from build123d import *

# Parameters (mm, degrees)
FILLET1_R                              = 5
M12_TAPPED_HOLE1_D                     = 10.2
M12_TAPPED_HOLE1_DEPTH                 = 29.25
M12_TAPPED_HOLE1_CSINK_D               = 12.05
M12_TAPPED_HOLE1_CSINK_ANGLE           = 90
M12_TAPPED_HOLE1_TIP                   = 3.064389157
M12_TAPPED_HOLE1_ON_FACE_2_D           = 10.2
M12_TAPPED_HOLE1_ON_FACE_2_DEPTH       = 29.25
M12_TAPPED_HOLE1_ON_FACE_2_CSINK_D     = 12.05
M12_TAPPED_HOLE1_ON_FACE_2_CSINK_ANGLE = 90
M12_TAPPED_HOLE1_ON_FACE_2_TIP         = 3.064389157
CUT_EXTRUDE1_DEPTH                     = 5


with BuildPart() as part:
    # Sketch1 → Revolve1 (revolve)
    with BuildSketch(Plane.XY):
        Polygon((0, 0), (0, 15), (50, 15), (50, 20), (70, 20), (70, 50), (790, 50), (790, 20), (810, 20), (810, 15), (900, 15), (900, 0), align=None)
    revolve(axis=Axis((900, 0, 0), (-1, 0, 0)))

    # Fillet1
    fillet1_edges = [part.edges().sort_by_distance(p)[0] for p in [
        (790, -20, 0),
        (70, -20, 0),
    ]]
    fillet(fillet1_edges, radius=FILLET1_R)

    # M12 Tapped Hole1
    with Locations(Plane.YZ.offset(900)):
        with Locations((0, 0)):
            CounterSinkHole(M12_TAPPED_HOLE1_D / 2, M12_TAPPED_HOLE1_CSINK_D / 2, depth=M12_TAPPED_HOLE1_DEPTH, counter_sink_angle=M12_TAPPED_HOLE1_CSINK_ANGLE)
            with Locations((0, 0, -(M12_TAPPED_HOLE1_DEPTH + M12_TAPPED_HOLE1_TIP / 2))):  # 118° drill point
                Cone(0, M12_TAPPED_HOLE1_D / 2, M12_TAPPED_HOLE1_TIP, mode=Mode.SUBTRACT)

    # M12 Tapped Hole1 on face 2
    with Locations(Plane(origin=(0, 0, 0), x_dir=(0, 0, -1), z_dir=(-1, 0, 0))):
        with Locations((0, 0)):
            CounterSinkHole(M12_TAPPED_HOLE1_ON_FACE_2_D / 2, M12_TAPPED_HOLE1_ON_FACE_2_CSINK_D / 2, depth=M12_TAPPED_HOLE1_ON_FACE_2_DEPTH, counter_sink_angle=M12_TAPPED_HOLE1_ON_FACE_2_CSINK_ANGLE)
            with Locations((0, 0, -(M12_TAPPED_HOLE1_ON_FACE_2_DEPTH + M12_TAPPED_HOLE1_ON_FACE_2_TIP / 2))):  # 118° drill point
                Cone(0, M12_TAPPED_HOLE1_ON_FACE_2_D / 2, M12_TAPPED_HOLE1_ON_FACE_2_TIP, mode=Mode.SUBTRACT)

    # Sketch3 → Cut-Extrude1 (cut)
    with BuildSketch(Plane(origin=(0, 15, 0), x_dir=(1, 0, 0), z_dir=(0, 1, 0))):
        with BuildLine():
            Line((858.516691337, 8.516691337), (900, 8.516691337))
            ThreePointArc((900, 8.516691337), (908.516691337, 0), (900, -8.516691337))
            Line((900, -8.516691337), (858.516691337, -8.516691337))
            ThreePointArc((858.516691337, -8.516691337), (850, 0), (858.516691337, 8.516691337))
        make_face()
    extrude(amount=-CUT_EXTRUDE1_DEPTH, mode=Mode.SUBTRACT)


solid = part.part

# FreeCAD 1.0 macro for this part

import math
import FreeCAD as App
import Part
import Sketcher
Q = App.Units.Quantity


def edges_at(feature, points):
    """Names of the edges that pass closest to the given points."""
    edges = feature.Shape.Edges
    near = lambda p: min(range(len(edges)), key=lambda i: edges[i].distToShape(Part.Vertex(*p))[0])
    return sorted({f"Edge{near(p) + 1}" for p in points})


def add_polygon(sketch, points):
    """Adds a closed chain of lines whose ends are joined by coincident constraints."""
    first, n = sketch.GeometryCount, len(points)
    for a, b in zip(points, points[1:] + points[:1]):
        sketch.addGeometry(Part.LineSegment(App.Vector(*a, 0), App.Vector(*b, 0)), False)
    for i in range(n):
        sketch.addConstraint(Sketcher.Constraint("Coincident", first + i, 2, first + (i + 1) % n, 1))

doc = App.newDocument("Part")
body = doc.addObject("PartDesign::Body", "Body")

# Sketch on XY plane
sketch1 = doc.addObject("Sketcher::SketchObject", "Sketch")
body.addObject(sketch1)
sketch1.AttachmentSupport = (doc.XY_Plane, [""])
sketch1.MapMode = "FlatFace"
add_polygon(sketch1, [(0, 15), (0, 0), (900, 0), (900, 15), (810, 15), (810, 20), (790, 20), (790, 50), (70, 50), (70, 20), (50, 20), (50, 15)])  # lines 0-11
sketch1.addConstraint(Sketcher.Constraint("Vertical", 0))
sketch1.addConstraint(Sketcher.Constraint("Horizontal", 1))
sketch1.addConstraint(Sketcher.Constraint("Vertical", 2))
sketch1.addConstraint(Sketcher.Constraint("Horizontal", 3))
sketch1.addConstraint(Sketcher.Constraint("Vertical", 4))
sketch1.addConstraint(Sketcher.Constraint("Horizontal", 5))
sketch1.addConstraint(Sketcher.Constraint("Vertical", 6))
sketch1.addConstraint(Sketcher.Constraint("Horizontal", 7))
sketch1.addConstraint(Sketcher.Constraint("Vertical", 8))
sketch1.addConstraint(Sketcher.Constraint("Horizontal", 9))
sketch1.addConstraint(Sketcher.Constraint("Vertical", 10))
sketch1.addConstraint(Sketcher.Constraint("Horizontal", 11))
sketch1.addConstraint(Sketcher.Constraint("Coincident", 0, 2, -1, 1))
sketch1.addConstraint(Sketcher.Constraint("Horizontal", 5, 2, 8, 2))
sketch1.addConstraint(Sketcher.Constraint("Horizontal", 3, 2, 10, 2))
sketch1.addConstraint(Sketcher.Constraint("Equal", 5, 9))
sketch1.addConstraint(Sketcher.Constraint("DistanceX", 1, 1, 1, 2, Q("900 mm")))
sketch1.addConstraint(Sketcher.Constraint("DistanceX", 3, 2, 3, 1, Q("90 mm")))
sketch1.addConstraint(Sketcher.Constraint("DistanceX", 5, 2, 5, 1, Q("20 mm")))
sketch1.addConstraint(Sketcher.Constraint("DistanceX", 7, 2, 7, 1, Q("720 mm")))
sketch1.addConstraint(Sketcher.Constraint("DistanceY", 0, 2, 0, 1, Q("15 mm")))
sketch1.addConstraint(Sketcher.Constraint("DistanceY", 4, 1, 4, 2, Q("5 mm")))
sketch1.addConstraint(Sketcher.Constraint("DistanceY", 6, 1, 6, 2, Q("30 mm")))
revolution = doc.addObject("PartDesign::Revolution", "Revolution")
body.addObject(revolution)
revolution.Profile = sketch1
revolution.ReferenceAxis = (sketch1, ["H_Axis"])
revolution.Angle = 360
doc.recompute()

fillet = doc.addObject("PartDesign::Fillet", "Fillet")
body.addObject(fillet)
fillet.Base = (revolution, edges_at(revolution, [(790, -20, 0), (70, -20, 0)]))
fillet.Radius = 5

# Sketch on YZ plane
sketch2 = doc.addObject("Sketcher::SketchObject", "Sketch001")
body.addObject(sketch2)
sketch2.AttachmentSupport = (doc.YZ_Plane, [""])
sketch2.MapMode = "FlatFace"
sketch2.AttachmentOffset = App.Placement(App.Vector(0, 0, 900), App.Rotation())
sketch2.addGeometry(Part.Circle(App.Vector(0, 0, 0), App.Vector(0, 0, 1), 5), False)
sketch2.addConstraint(Sketcher.Constraint("Coincident", 0, 3, -1, 1))
sketch2.addConstraint(Sketcher.Constraint("Diameter", 0, Q("10.2 mm")))
doc.recompute()
hole = doc.addObject("PartDesign::Hole", "Hole")
body.addObject(hole)
hole.Profile = sketch2
hole.ThreadType = "None"
hole.Diameter = 10.2
hole.DepthType = "Dimension"
hole.Depth = 29.25
hole.DrillPoint = "Angled"
hole.DrillPointAngle = 118
hole.HoleCutType = "Countersink"
hole.HoleCutDiameter = 12.05
hole.HoleCutCountersinkAngle = 90

# Sketch on YZ plane
sketch3 = doc.addObject("Sketcher::SketchObject", "Sketch002")
body.addObject(sketch3)
sketch3.AttachmentSupport = (doc.YZ_Plane, [""])
sketch3.MapMode = "FlatFace"
sketch3.addGeometry(Part.Circle(App.Vector(0, 0, 0), App.Vector(0, 0, 1), 5), False)
sketch3.addConstraint(Sketcher.Constraint("Coincident", 0, 3, -1, 1))
sketch3.addConstraint(Sketcher.Constraint("Diameter", 0, Q("10.2 mm")))
doc.recompute()
hole2 = doc.addObject("PartDesign::Hole", "Hole001")
body.addObject(hole2)
hole2.Profile = sketch3
hole2.ThreadType = "None"
hole2.Diameter = 10.2
hole2.DepthType = "Dimension"
hole2.Depth = 29.25
hole2.DrillPoint = "Angled"
hole2.DrillPointAngle = 118
hole2.HoleCutType = "Countersink"
hole2.HoleCutDiameter = 12.05
hole2.HoleCutCountersinkAngle = 90
hole2.Reversed = True

# Sketch on XZ plane
sketch4 = doc.addObject("Sketcher::SketchObject", "Sketch003")
body.addObject(sketch4)
sketch4.AttachmentSupport = (doc.XZ_Plane, [""])
sketch4.MapMode = "FlatFace"
sketch4.AttachmentOffset = App.Placement(App.Vector(0, 0, -15), App.Rotation())
sketch4.addGeometry(Part.LineSegment(App.Vector(900, -9, 0), App.Vector(859, -9, 0)), False)
sketch4.addGeometry(Part.ArcOfCircle(Part.Circle(App.Vector(859, 0, 0), App.Vector(0, 0, 1), 9), math.radians(90), math.radians(270)), False)
sketch4.addGeometry(Part.LineSegment(App.Vector(859, 9, 0), App.Vector(900, 9, 0)), False)
sketch4.addGeometry(Part.ArcOfCircle(Part.Circle(App.Vector(900, 0, 0), App.Vector(0, 0, 1), 9), math.radians(-90), math.radians(90)), False)
sketch4.addConstraint(Sketcher.Constraint("Tangent", 0, 2, 1, 2))
sketch4.addConstraint(Sketcher.Constraint("Tangent", 1, 1, 2, 1))
sketch4.addConstraint(Sketcher.Constraint("Tangent", 2, 2, 3, 2))
sketch4.addConstraint(Sketcher.Constraint("Tangent", 3, 1, 0, 1))
sketch4.addConstraint(Sketcher.Constraint("Horizontal", 0))
sketch4.addConstraint(Sketcher.Constraint("Horizontal", 2))
sketch4.addConstraint(Sketcher.Constraint("PointOnObject", 1, 3, -1))
sketch4.addConstraint(Sketcher.Constraint("DistanceX", -1, 1, 3, 3, Q("900 mm")))
sketch4.addConstraint(Sketcher.Constraint("Radius", 1, Q("8.516691 mm")))
sketch4.addConstraint(Sketcher.Constraint("DistanceX", 0, 2, 0, 1, Q("41.483309 mm")))
pocket1 = doc.addObject("PartDesign::Pocket", "Pocket")
body.addObject(pocket1)
pocket1.Profile = sketch4
pocket1.Length = 5
pocket1.Reversed = True

doc.recompute()
